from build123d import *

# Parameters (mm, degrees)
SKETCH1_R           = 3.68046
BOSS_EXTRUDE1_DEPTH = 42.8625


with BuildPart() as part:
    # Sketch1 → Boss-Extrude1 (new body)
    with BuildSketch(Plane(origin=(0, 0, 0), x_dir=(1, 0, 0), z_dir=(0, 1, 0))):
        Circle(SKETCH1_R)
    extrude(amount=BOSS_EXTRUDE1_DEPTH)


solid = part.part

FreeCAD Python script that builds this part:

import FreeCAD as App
import Part
import Sketcher
from FreeCAD import Vector
Q = App.Units.Quantity

doc = App.newDocument("Part")
body = doc.addObject("PartDesign::Body", "Body")

sketch1 = doc.addObject("Sketcher::SketchObject", "Sketch")
body.addObject(sketch1)
sketch1.AttachmentSupport = (doc.XZ_Plane, [""])
sketch1.MapMode = "FlatFace"
sketch1.addGeometry(Part.Circle(Vector(0, 0, 0), Vector(0, 0, 1), 3.7), False)
sketch1.addConstraint(Sketcher.Constraint("Coincident", 0, 3, -1, 1))
sketch1.addConstraint(Sketcher.Constraint("Diameter", 0, Q("0.2898 in")))
pad1 = doc.addObject("PartDesign::Pad", "Pad")
body.addObject(pad1)
pad1.Profile = sketch1
pad1.Length = Q("1.6875 in")
pad1.Reversed = True

doc.recompute()
